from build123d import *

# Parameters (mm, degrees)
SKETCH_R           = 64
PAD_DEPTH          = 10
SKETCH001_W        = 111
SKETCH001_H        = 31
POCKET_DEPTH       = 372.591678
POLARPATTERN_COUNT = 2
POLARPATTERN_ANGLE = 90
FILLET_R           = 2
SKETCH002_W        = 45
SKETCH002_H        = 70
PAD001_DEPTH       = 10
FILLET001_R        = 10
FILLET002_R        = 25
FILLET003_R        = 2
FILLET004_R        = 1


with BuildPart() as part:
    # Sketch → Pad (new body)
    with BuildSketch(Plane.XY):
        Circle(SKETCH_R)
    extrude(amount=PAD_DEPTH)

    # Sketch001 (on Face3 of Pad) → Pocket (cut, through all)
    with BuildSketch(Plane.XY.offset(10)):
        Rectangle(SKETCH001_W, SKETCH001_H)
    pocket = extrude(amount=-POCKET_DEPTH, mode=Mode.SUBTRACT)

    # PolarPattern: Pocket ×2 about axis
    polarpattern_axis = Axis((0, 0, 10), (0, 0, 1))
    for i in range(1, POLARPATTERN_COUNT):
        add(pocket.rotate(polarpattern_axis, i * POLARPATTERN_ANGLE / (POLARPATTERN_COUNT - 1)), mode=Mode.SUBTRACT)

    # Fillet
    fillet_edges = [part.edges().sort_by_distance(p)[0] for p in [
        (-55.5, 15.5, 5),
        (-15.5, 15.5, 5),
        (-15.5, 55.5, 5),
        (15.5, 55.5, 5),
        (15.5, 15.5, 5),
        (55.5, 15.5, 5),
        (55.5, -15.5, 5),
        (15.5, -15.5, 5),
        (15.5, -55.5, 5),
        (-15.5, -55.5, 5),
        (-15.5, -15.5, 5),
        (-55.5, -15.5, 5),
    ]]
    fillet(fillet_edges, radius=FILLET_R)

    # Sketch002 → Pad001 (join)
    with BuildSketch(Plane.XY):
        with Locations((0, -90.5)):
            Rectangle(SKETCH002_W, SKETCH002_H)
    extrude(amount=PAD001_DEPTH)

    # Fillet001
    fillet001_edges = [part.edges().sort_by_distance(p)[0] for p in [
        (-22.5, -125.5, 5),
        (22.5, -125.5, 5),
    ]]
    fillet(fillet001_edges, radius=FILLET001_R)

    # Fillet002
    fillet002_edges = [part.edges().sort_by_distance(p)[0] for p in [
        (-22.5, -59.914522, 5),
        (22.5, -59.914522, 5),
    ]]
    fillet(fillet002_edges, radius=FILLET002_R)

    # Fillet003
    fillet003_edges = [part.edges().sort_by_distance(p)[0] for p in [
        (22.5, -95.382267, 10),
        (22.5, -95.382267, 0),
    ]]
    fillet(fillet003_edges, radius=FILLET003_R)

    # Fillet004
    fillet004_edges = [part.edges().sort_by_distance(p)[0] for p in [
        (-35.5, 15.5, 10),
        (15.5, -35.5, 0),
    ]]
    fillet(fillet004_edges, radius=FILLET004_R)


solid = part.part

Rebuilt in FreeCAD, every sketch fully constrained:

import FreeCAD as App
import Part
import Sketcher
from FreeCAD import Vector


def edges_at(feature, points):
    """Names of the edges that pass closest to the given points."""
    edges = feature.Shape.Edges
    near = lambda p: min(range(len(edges)), key=lambda i: edges[i].distToShape(Part.Vertex(*p))[0])
    return sorted({f"Edge{near(p) + 1}" for p in points})


def add_polygon(sketch, points):
    """Adds a closed chain of lines whose ends are joined by coincident constraints."""
    first, n = sketch.GeometryCount, len(points)
    for a, b in zip(points, points[1:] + points[:1]):
        sketch.addGeometry(Part.LineSegment(App.Vector(*a, 0), App.Vector(*b, 0)), False)
    for i in range(n):
        sketch.addConstraint(Sketcher.Constraint("Coincident", first + i, 2, first + (i + 1) % n, 1))

doc = App.newDocument("Part")
params = doc.addObject("Spreadsheet::Sheet", "Params")
for row, (alias, value) in enumerate([
    ("sketch1_diameter", "128 mm"),
    ("pad1_length", "10 mm"),
    ("sketch2_width", "111 mm"),
    ("sketch2_height", "31 mm"),
    ("fillet_radius", "2 mm"),
    ("sketch3_width", "45 mm"),
    ("sketch3_height", "70 mm"),
    ("pad2_length", "10 mm"),
    ("fillet2_radius", "10 mm"),
    ("fillet3_radius", "25 mm"),
    ("fillet4_radius", "2 mm"),
    ("fillet5_radius", "1 mm"),
], start=1):
    params.set(f"A{row}", alias)
    params.set(f"B{row}", "=" + value)
    params.setAlias(f"B{row}", alias)

body = doc.addObject("PartDesign::Body", "Body")

# Sketch on XY plane
sketch1 = body.newObject("Sketcher::SketchObject", "Sketch")
sketch1.AttachmentSupport = (doc.getObject("XY_Plane"), [""])
sketch1.MapMode = "FlatFace"
sketch1.addGeometry(Part.Circle(Vector(0, 0, 0), Vector(0, 0, 1), 64), False)
sketch1.addConstraint([
    Sketcher.Constraint("Coincident", 0, 3, -1, 1),
    Sketcher.Constraint("Diameter", 0, 128.0),
])
sketch1.setExpression("Constraints[1]", "Params.sketch1_diameter")
pad1 = body.newObject("PartDesign::Pad", "Pad")
pad1.Profile = sketch1
pad1.setExpression("Length", "Params.pad1_length")

# Sketch on XY plane
sketch2 = body.newObject("Sketcher::SketchObject", "Sketch001")
sketch2.AttachmentSupport = (doc.getObject("XY_Plane"), [""])
sketch2.MapMode = "FlatFace"
sketch2.AttachmentOffset = App.Placement(Vector(0, 0, 10), App.Rotation())
add_polygon(sketch2, [(-56, 16), (-56, -16), (56, -16), (56, 16)])  # lines 0-3
sketch2.addConstraint([
    Sketcher.Constraint("Vertical", 0),
    Sketcher.Constraint("Horizontal", 1),
    Sketcher.Constraint("Vertical", 2),
    Sketcher.Constraint("Horizontal", 3),
    Sketcher.Constraint("Symmetric", 0, 2, 2, 2, -1, 1),
    Sketcher.Constraint("DistanceX", 1, 1, 1, 2, 111.0),
    Sketcher.Constraint("DistanceY", 0, 2, 0, 1, 31.0),
])
sketch2.setExpression("Constraints[9]", "Params.sketch2_width")
sketch2.setExpression("Constraints[10]", "Params.sketch2_height")
pocket1 = body.newObject("PartDesign::Pocket", "Pocket")
pocket1.Profile = sketch2
pocket1.Type = "ThroughAll"
doc.recompute()

polarpattern = body.newObject("PartDesign::PolarPattern", "PolarPattern")
polarpattern.Originals = [pocket1]
polarpattern.Axis = (doc.getObject("Z_Axis"), [""])
polarpattern.Angle = 90
polarpattern.Occurrences = 2
body.Tip = polarpattern
doc.recompute()

fillet = body.newObject("PartDesign::Fillet", "Fillet")
fillet.Base = (polarpattern, edges_at(polarpattern, [
    (-55.5, 15.5, 5),
    (-15.5, 15.5, 5),
    (-15.5, 55.5, 5),
    (15.5, 55.5, 5),
    (15.5, 15.5, 5),
    (55.5, 15.5, 5),
    (55.5, -15.5, 5),
    (15.5, -15.5, 5),
    (15.5, -55.5, 5),
    (-15.5, -55.5, 5),
    (-15.5, -15.5, 5),
    (-55.5, -15.5, 5),
]))
fillet.setExpression("Radius", "Params.fillet_radius")

# Sketch on XY plane
sketch3 = body.newObject("Sketcher::SketchObject", "Sketch002")
sketch3.AttachmentSupport = (doc.getObject("XY_Plane"), [""])
sketch3.MapMode = "FlatFace"
add_polygon(sketch3, [(-22, -56), (-22, -126), (22, -126), (22, -56)])  # lines 0-3
sketch3.addConstraint([
    Sketcher.Constraint("Vertical", 0),
    Sketcher.Constraint("Horizontal", 1),
    Sketcher.Constraint("Vertical", 2),
    Sketcher.Constraint("Horizontal", 3),
    Sketcher.Constraint("DistanceX", 1, 1, 1, 2, 45.0),
    Sketcher.Constraint("DistanceY", 0, 2, 0, 1, 70.0),
    Sketcher.Constraint("DistanceX", 0, 2, -1, 1, 22.5),
    Sketcher.Constraint("DistanceY", 0, 2, -1, 1, 125.5),
])
sketch3.setExpression("Constraints[8]", "Params.sketch3_width")
sketch3.setExpression("Constraints[9]", "Params.sketch3_height")
pad2 = body.newObject("PartDesign::Pad", "Pad001")
pad2.Profile = sketch3
pad2.setExpression("Length", "Params.pad2_length")
doc.recompute()

fillet2 = body.newObject("PartDesign::Fillet", "Fillet001")
fillet2.Base = (pad2, edges_at(pad2, [(-22.5, -125.5, 5), (22.5, -125.5, 5)]))
fillet2.setExpression("Radius", "Params.fillet2_radius")
doc.recompute()

fillet3 = body.newObject("PartDesign::Fillet", "Fillet002")
fillet3.Base = (fillet2, edges_at(fillet2, [(-22.5, -59.915, 5), (22.5, -59.915, 5)]))
fillet3.setExpression("Radius", "Params.fillet3_radius")
doc.recompute()

fillet4 = body.newObject("PartDesign::Fillet", "Fillet003")
fillet4.Base = (fillet3, edges_at(fillet3, [(22.5, -95.382, 10), (22.5, -95.382, 0)]))
fillet4.setExpression("Radius", "Params.fillet4_radius")
doc.recompute()

fillet5 = body.newObject("PartDesign::Fillet", "Fillet004")
fillet5.Base = (fillet4, edges_at(fillet4, [(-35.5, 15.5, 10), (15.5, -35.5, 0)]))
fillet5.setExpression("Radius", "Params.fillet5_radius")

doc.recompute()
